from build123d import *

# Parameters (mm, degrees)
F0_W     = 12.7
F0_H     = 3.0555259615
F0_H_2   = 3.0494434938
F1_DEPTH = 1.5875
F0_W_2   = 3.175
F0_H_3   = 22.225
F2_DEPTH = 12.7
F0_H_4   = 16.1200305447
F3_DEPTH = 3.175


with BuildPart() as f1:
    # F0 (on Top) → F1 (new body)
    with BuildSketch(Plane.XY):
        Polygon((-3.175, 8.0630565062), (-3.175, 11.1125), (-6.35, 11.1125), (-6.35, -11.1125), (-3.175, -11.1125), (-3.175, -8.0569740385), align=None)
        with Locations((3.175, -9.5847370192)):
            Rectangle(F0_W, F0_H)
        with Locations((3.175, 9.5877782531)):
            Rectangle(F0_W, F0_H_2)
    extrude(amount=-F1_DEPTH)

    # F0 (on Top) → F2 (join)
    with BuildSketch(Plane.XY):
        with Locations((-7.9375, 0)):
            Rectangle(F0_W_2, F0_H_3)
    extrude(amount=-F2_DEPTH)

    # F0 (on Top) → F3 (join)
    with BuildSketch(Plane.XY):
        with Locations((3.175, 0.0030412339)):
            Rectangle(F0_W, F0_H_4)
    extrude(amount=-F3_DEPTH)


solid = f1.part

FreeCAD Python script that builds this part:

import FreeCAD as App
import Part
import Sketcher

V = App.Vector
Q = App.Units.Quantity


def add_polygon(sketch, points):
    """Adds a closed chain of lines whose ends are joined by coincident constraints."""
    first, n = sketch.GeometryCount, len(points)
    for a, b in zip(points, points[1:] + points[:1]):
        sketch.addGeometry(Part.LineSegment(App.Vector(*a, 0), App.Vector(*b, 0)), False)
    for i in range(n):
        sketch.addConstraint(Sketcher.Constraint("Coincident", first + i, 2, first + (i + 1) % n, 1))

doc = App.newDocument("Part")
body = doc.addObject("PartDesign::Body", "Body")

# Sketch on XY plane
sketch1 = body.newObject("Sketcher::SketchObject", "Sketch")
sketch1.AttachmentSupport = (doc.getObject("XY_Plane"), [""])
sketch1.MapMode = "FlatFace"
add_polygon(sketch1, [(-6.35, 11.1125), (-6.35, -11.1125), (-3.175, -11.1125), (9.525, -11.1125), (9.525, -8.056974), (-3.175, -8.056974), (-3.175, 8.063057), (9.525, 8.063057), (9.525, 11.1125)])  # lines 0-8
sketch1.addConstraint(Sketcher.Constraint("Vertical", 0))
sketch1.addConstraint(Sketcher.Constraint("Horizontal", 1))
sketch1.addConstraint(Sketcher.Constraint("Horizontal", 2))
sketch1.addConstraint(Sketcher.Constraint("Vertical", 3))
sketch1.addConstraint(Sketcher.Constraint("Horizontal", 4))
sketch1.addConstraint(Sketcher.Constraint("Vertical", 5))
sketch1.addConstraint(Sketcher.Constraint("Horizontal", 6))
sketch1.addConstraint(Sketcher.Constraint("Vertical", 7))
sketch1.addConstraint(Sketcher.Constraint("Horizontal", 8))
sketch1.addConstraint(Sketcher.Constraint("Symmetric", 2, 2, 7, 2, -1))
sketch1.addConstraint(Sketcher.Constraint("Vertical", 1, 2, 4, 2))
sketch1.addConstraint(Sketcher.Constraint("DistanceX", 2, 1, 2, 2, Q("0.5 in")))
sketch1.addConstraint(Sketcher.Constraint("DistanceX", 1, 1, 1, 2, Q("0.125 in")))
sketch1.addConstraint(Sketcher.Constraint("DistanceY", 0, 2, 0, 1, Q("0.875 in")))
sketch1.addConstraint(Sketcher.Constraint("DistanceX", 0, 2, -1, 1, Q("0.25 in")))
sketch1.addConstraint(Sketcher.Constraint("DistanceY", 5, 1, 5, 2, 16.120031))
sketch1.addConstraint(Sketcher.Constraint("DistanceY", 3, 1, 3, 2, 3.055526))
pad1 = body.newObject("PartDesign::Pad", "Pad")
pad1.Profile = sketch1
pad1.Length = Q("0.0625 in")
pad1.Reversed = True

# Sketch on XY plane
sketch2 = body.newObject("Sketcher::SketchObject", "Sketch001")
sketch2.AttachmentSupport = (doc.getObject("XY_Plane"), [""])
sketch2.MapMode = "FlatFace"
add_polygon(sketch2, [(-9.525, 11.1125), (-9.525, -11.1125), (-6.35, -11.1125), (-6.35, 11.1125)])  # lines 0-3
sketch2.addConstraint(Sketcher.Constraint("Vertical", 0))
sketch2.addConstraint(Sketcher.Constraint("Horizontal", 1))
sketch2.addConstraint(Sketcher.Constraint("Vertical", 2))
sketch2.addConstraint(Sketcher.Constraint("Horizontal", 3))
sketch2.addConstraint(Sketcher.Constraint("DistanceX", 1, 1, 1, 2, Q("0.125 in")))
sketch2.addConstraint(Sketcher.Constraint("DistanceY", 0, 2, 0, 1, Q("0.875 in")))
sketch2.addConstraint(Sketcher.Constraint("DistanceX", 1, 2, -1, 1, Q("0.25 in")))
sketch2.addConstraint(Sketcher.Constraint("DistanceY", 0, 2, -1, 1, Q("0.4375 in")))
pad2 = body.newObject("PartDesign::Pad", "Pad001")
pad2.Profile = sketch2
pad2.Length = Q("0.5 in")
pad2.Reversed = True

# Sketch on XY plane
sketch3 = body.newObject("Sketcher::SketchObject", "Sketch002")
sketch3.AttachmentSupport = (doc.getObject("XY_Plane"), [""])
sketch3.MapMode = "FlatFace"
add_polygon(sketch3, [(-3.175, 8.063057), (-3.175, -8.056974), (9.525, -8.056974), (9.525, 8.063057)])  # lines 0-3
sketch3.addConstraint(Sketcher.Constraint("Vertical", 0))
sketch3.addConstraint(Sketcher.Constraint("Horizontal", 1))
sketch3.addConstraint(Sketcher.Constraint("Vertical", 2))
sketch3.addConstraint(Sketcher.Constraint("Horizontal", 3))
sketch3.addConstraint(Sketcher.Constraint("DistanceX", 1, 1, 1, 2, Q("0.5 in")))
sketch3.addConstraint(Sketcher.Constraint("DistanceX", 0, 2, -1, 1, Q("0.125 in")))
sketch3.addConstraint(Sketcher.Constraint("DistanceY", 0, 2, 0, 1, 16.120031))
sketch3.addConstraint(Sketcher.Constraint("DistanceY", 0, 2, -1, 1, 8.056974))
pad3 = body.newObject("PartDesign::Pad", "Pad002")
pad3.Profile = sketch3
pad3.Length = Q("0.125 in")
pad3.Reversed = True

doc.recompute()
